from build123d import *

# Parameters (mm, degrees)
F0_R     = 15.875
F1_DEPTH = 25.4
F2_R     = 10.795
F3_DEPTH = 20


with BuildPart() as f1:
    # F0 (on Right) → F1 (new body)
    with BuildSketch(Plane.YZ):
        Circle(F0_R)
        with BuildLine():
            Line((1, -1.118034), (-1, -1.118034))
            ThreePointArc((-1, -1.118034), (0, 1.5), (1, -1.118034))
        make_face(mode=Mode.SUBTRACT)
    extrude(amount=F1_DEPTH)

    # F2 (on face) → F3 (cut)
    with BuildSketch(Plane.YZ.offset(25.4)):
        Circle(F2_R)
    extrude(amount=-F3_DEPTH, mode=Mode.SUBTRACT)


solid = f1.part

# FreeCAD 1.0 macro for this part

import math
import FreeCAD as App
import Part
import Sketcher
from FreeCAD import Vector

doc = App.newDocument("Part")
params = doc.addObject("Spreadsheet::Sheet", "Params")
for row, (alias, value) in enumerate([
    ("sketch1_radius", "1.5 mm"),
    ("sketch1_diameter", "31.75 mm"),
    ("sketch1_width", "2 mm"),
    ("pad1_length", "25.4 mm"),
    ("sketch2_diameter", "21.59 mm"),
    ("pocket1_length", "20 mm"),
], start=1):
    params.set(f"A{row}", alias)
    params.set(f"B{row}", "=" + value)
    params.setAlias(f"B{row}", alias)

body = doc.addObject("PartDesign::Body", "Body")

# Sketch on YZ plane
sketch1 = body.newObject("Sketcher::SketchObject", "Sketch")
sketch1.AttachmentSupport = (doc.getObject("YZ_Plane"), [""])
sketch1.MapMode = "FlatFace"
sketch1.addGeometry([
    Part.Circle(Vector(0, 0, 0), Vector(0, 0, 1), 15.875),
    Part.ArcOfCircle(Part.Circle(Vector(0, 0, 0), Vector(0, 0, 1), 1.5), math.radians(-48.189685), math.radians(228.189685)),
    Part.LineSegment(Vector(1, -1.118034, 0), Vector(-1, -1.118034, 0)),
], False)
sketch1.addConstraint([
    Sketcher.Constraint("Coincident", 1, 1, 2, 1),
    Sketcher.Constraint("Coincident", 2, 2, 1, 2),
    Sketcher.Constraint("Horizontal", 2),
    Sketcher.Constraint("Coincident", 0, 3, -1, 1),
    Sketcher.Constraint("Coincident", 1, 3, -1, 1),
    Sketcher.Constraint("Radius", 1, 1.5),
    Sketcher.Constraint("Diameter", 0, 31.75),
    Sketcher.Constraint("DistanceX", 2, 2, 2, 1, 2.0),
])
sketch1.setExpression("Constraints[5]", "Params.sketch1_radius")
sketch1.setExpression("Constraints[6]", "Params.sketch1_diameter")
sketch1.setExpression("Constraints[7]", "Params.sketch1_width")
pad1 = body.newObject("PartDesign::Pad", "Pad")
pad1.Profile = sketch1
pad1.setExpression("Length", "Params.pad1_length")

# Sketch on YZ plane
sketch2 = body.newObject("Sketcher::SketchObject", "Sketch001")
sketch2.AttachmentSupport = (doc.getObject("YZ_Plane"), [""])
sketch2.MapMode = "FlatFace"
sketch2.AttachmentOffset = App.Placement(Vector(0, 0, 25.4), App.Rotation())
sketch2.addGeometry(Part.Circle(Vector(0, 0, 0), Vector(0, 0, 1), 10.795), False)
sketch2.addConstraint([
    Sketcher.Constraint("Coincident", 0, 3, -1, 1),
    Sketcher.Constraint("Diameter", 0, 21.59),
])
sketch2.setExpression("Constraints[1]", "Params.sketch2_diameter")
pocket1 = body.newObject("PartDesign::Pocket", "Pocket")
pocket1.Profile = sketch2
pocket1.setExpression("Length", "Params.pocket1_length")

doc.recompute()
